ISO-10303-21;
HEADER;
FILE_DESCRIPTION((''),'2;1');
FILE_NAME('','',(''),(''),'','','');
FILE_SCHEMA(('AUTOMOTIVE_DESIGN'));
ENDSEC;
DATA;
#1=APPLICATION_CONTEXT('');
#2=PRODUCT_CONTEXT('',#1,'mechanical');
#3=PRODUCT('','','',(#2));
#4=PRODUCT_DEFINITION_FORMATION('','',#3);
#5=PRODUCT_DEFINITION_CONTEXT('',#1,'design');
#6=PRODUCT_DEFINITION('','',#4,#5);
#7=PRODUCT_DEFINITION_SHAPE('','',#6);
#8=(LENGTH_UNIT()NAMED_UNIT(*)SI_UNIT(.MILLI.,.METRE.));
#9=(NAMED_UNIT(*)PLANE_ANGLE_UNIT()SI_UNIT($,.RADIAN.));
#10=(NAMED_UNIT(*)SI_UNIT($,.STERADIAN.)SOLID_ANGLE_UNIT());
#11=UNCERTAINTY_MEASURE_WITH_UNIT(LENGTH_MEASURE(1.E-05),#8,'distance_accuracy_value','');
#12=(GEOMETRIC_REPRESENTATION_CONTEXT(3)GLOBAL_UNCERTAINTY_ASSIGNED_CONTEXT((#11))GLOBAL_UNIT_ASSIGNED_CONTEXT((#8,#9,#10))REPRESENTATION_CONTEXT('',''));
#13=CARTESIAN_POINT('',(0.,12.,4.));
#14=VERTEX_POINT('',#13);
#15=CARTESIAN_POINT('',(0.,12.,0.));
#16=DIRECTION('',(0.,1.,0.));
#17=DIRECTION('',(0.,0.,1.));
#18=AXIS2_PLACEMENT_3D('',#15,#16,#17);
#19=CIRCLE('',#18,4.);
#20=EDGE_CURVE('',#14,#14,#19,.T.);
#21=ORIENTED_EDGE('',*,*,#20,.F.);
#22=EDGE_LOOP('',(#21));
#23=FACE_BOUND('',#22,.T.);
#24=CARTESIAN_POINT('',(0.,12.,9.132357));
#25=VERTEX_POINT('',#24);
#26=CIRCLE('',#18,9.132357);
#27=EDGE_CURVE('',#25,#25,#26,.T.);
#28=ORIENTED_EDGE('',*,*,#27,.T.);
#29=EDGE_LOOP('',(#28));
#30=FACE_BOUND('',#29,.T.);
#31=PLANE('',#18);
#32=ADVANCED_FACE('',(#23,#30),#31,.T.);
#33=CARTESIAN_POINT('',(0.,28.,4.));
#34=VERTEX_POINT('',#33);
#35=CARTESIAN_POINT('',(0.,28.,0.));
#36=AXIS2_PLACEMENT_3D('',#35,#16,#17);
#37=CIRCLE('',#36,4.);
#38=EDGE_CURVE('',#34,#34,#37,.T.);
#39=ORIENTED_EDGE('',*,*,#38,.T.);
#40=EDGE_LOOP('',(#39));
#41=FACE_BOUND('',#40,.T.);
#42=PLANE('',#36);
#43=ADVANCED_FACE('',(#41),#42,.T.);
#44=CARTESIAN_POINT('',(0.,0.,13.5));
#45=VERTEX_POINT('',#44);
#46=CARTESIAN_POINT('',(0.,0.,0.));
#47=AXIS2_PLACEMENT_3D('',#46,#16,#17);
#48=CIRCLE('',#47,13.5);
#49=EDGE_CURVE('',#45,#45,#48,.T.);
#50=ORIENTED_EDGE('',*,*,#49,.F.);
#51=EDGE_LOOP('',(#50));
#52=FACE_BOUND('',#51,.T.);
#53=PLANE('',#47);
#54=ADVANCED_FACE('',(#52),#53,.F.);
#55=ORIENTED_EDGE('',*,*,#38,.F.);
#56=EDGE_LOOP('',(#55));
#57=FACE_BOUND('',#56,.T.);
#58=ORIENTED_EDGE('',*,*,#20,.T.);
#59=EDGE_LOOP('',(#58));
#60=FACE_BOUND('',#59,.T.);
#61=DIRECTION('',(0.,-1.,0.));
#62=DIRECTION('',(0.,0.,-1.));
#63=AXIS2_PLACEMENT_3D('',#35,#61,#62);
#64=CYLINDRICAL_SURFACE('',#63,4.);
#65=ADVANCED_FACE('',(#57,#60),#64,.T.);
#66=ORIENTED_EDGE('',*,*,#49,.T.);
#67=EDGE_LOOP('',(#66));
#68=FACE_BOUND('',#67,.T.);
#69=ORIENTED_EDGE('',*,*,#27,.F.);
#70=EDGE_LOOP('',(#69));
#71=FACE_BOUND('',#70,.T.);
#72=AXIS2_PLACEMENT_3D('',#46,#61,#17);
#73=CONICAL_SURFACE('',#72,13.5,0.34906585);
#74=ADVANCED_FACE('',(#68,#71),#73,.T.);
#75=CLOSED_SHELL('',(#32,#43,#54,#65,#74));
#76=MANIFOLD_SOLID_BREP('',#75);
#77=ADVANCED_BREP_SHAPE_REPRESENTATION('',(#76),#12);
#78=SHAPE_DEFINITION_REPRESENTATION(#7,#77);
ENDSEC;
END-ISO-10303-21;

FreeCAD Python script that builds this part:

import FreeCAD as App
import Part
import Sketcher

V = App.Vector
Q = App.Units.Quantity

doc = App.newDocument("Part")
body = doc.addObject("PartDesign::Body", "Body")

# Sketch on XZ plane
sketch1 = body.newObject("Sketcher::SketchObject", "Sketch")
sketch1.AttachmentSupport = (doc.getObject("XZ_Plane"), [""])
sketch1.MapMode = "FlatFace"
sketch1.addGeometry(Part.Circle(V(0, 0, 0), V(0, 0, 1), 14), False)
sketch1.addConstraint([
    Sketcher.Constraint("Coincident", 0, 3, -1, 1),
    Sketcher.Constraint("Diameter", 0, Q("27 mm")),
])
pad1 = body.newObject("PartDesign::Pad", "Pad")
pad1.Profile = sketch1
pad1.Length = 12
pad1.Reversed = True
pad1.TaperAngle = -20

# Sketch on XZ plane
sketch2 = body.newObject("Sketcher::SketchObject", "Sketch001")
sketch2.AttachmentSupport = (doc.getObject("XZ_Plane"), [""])
sketch2.MapMode = "FlatFace"
sketch2.AttachmentOffset = App.Placement(V(0, 0, -12), App.Rotation())
sketch2.addGeometry(Part.Circle(V(0, 0, 0), V(0, 0, 1), 4), False)
sketch2.addConstraint([
    Sketcher.Constraint("Coincident", 0, 3, -1, 1),
    Sketcher.Constraint("Diameter", 0, Q("8 mm")),
])
pad2 = body.newObject("PartDesign::Pad", "Pad001")
pad2.Profile = sketch2
pad2.Length = 16
pad2.Reversed = True

doc.recompute()
